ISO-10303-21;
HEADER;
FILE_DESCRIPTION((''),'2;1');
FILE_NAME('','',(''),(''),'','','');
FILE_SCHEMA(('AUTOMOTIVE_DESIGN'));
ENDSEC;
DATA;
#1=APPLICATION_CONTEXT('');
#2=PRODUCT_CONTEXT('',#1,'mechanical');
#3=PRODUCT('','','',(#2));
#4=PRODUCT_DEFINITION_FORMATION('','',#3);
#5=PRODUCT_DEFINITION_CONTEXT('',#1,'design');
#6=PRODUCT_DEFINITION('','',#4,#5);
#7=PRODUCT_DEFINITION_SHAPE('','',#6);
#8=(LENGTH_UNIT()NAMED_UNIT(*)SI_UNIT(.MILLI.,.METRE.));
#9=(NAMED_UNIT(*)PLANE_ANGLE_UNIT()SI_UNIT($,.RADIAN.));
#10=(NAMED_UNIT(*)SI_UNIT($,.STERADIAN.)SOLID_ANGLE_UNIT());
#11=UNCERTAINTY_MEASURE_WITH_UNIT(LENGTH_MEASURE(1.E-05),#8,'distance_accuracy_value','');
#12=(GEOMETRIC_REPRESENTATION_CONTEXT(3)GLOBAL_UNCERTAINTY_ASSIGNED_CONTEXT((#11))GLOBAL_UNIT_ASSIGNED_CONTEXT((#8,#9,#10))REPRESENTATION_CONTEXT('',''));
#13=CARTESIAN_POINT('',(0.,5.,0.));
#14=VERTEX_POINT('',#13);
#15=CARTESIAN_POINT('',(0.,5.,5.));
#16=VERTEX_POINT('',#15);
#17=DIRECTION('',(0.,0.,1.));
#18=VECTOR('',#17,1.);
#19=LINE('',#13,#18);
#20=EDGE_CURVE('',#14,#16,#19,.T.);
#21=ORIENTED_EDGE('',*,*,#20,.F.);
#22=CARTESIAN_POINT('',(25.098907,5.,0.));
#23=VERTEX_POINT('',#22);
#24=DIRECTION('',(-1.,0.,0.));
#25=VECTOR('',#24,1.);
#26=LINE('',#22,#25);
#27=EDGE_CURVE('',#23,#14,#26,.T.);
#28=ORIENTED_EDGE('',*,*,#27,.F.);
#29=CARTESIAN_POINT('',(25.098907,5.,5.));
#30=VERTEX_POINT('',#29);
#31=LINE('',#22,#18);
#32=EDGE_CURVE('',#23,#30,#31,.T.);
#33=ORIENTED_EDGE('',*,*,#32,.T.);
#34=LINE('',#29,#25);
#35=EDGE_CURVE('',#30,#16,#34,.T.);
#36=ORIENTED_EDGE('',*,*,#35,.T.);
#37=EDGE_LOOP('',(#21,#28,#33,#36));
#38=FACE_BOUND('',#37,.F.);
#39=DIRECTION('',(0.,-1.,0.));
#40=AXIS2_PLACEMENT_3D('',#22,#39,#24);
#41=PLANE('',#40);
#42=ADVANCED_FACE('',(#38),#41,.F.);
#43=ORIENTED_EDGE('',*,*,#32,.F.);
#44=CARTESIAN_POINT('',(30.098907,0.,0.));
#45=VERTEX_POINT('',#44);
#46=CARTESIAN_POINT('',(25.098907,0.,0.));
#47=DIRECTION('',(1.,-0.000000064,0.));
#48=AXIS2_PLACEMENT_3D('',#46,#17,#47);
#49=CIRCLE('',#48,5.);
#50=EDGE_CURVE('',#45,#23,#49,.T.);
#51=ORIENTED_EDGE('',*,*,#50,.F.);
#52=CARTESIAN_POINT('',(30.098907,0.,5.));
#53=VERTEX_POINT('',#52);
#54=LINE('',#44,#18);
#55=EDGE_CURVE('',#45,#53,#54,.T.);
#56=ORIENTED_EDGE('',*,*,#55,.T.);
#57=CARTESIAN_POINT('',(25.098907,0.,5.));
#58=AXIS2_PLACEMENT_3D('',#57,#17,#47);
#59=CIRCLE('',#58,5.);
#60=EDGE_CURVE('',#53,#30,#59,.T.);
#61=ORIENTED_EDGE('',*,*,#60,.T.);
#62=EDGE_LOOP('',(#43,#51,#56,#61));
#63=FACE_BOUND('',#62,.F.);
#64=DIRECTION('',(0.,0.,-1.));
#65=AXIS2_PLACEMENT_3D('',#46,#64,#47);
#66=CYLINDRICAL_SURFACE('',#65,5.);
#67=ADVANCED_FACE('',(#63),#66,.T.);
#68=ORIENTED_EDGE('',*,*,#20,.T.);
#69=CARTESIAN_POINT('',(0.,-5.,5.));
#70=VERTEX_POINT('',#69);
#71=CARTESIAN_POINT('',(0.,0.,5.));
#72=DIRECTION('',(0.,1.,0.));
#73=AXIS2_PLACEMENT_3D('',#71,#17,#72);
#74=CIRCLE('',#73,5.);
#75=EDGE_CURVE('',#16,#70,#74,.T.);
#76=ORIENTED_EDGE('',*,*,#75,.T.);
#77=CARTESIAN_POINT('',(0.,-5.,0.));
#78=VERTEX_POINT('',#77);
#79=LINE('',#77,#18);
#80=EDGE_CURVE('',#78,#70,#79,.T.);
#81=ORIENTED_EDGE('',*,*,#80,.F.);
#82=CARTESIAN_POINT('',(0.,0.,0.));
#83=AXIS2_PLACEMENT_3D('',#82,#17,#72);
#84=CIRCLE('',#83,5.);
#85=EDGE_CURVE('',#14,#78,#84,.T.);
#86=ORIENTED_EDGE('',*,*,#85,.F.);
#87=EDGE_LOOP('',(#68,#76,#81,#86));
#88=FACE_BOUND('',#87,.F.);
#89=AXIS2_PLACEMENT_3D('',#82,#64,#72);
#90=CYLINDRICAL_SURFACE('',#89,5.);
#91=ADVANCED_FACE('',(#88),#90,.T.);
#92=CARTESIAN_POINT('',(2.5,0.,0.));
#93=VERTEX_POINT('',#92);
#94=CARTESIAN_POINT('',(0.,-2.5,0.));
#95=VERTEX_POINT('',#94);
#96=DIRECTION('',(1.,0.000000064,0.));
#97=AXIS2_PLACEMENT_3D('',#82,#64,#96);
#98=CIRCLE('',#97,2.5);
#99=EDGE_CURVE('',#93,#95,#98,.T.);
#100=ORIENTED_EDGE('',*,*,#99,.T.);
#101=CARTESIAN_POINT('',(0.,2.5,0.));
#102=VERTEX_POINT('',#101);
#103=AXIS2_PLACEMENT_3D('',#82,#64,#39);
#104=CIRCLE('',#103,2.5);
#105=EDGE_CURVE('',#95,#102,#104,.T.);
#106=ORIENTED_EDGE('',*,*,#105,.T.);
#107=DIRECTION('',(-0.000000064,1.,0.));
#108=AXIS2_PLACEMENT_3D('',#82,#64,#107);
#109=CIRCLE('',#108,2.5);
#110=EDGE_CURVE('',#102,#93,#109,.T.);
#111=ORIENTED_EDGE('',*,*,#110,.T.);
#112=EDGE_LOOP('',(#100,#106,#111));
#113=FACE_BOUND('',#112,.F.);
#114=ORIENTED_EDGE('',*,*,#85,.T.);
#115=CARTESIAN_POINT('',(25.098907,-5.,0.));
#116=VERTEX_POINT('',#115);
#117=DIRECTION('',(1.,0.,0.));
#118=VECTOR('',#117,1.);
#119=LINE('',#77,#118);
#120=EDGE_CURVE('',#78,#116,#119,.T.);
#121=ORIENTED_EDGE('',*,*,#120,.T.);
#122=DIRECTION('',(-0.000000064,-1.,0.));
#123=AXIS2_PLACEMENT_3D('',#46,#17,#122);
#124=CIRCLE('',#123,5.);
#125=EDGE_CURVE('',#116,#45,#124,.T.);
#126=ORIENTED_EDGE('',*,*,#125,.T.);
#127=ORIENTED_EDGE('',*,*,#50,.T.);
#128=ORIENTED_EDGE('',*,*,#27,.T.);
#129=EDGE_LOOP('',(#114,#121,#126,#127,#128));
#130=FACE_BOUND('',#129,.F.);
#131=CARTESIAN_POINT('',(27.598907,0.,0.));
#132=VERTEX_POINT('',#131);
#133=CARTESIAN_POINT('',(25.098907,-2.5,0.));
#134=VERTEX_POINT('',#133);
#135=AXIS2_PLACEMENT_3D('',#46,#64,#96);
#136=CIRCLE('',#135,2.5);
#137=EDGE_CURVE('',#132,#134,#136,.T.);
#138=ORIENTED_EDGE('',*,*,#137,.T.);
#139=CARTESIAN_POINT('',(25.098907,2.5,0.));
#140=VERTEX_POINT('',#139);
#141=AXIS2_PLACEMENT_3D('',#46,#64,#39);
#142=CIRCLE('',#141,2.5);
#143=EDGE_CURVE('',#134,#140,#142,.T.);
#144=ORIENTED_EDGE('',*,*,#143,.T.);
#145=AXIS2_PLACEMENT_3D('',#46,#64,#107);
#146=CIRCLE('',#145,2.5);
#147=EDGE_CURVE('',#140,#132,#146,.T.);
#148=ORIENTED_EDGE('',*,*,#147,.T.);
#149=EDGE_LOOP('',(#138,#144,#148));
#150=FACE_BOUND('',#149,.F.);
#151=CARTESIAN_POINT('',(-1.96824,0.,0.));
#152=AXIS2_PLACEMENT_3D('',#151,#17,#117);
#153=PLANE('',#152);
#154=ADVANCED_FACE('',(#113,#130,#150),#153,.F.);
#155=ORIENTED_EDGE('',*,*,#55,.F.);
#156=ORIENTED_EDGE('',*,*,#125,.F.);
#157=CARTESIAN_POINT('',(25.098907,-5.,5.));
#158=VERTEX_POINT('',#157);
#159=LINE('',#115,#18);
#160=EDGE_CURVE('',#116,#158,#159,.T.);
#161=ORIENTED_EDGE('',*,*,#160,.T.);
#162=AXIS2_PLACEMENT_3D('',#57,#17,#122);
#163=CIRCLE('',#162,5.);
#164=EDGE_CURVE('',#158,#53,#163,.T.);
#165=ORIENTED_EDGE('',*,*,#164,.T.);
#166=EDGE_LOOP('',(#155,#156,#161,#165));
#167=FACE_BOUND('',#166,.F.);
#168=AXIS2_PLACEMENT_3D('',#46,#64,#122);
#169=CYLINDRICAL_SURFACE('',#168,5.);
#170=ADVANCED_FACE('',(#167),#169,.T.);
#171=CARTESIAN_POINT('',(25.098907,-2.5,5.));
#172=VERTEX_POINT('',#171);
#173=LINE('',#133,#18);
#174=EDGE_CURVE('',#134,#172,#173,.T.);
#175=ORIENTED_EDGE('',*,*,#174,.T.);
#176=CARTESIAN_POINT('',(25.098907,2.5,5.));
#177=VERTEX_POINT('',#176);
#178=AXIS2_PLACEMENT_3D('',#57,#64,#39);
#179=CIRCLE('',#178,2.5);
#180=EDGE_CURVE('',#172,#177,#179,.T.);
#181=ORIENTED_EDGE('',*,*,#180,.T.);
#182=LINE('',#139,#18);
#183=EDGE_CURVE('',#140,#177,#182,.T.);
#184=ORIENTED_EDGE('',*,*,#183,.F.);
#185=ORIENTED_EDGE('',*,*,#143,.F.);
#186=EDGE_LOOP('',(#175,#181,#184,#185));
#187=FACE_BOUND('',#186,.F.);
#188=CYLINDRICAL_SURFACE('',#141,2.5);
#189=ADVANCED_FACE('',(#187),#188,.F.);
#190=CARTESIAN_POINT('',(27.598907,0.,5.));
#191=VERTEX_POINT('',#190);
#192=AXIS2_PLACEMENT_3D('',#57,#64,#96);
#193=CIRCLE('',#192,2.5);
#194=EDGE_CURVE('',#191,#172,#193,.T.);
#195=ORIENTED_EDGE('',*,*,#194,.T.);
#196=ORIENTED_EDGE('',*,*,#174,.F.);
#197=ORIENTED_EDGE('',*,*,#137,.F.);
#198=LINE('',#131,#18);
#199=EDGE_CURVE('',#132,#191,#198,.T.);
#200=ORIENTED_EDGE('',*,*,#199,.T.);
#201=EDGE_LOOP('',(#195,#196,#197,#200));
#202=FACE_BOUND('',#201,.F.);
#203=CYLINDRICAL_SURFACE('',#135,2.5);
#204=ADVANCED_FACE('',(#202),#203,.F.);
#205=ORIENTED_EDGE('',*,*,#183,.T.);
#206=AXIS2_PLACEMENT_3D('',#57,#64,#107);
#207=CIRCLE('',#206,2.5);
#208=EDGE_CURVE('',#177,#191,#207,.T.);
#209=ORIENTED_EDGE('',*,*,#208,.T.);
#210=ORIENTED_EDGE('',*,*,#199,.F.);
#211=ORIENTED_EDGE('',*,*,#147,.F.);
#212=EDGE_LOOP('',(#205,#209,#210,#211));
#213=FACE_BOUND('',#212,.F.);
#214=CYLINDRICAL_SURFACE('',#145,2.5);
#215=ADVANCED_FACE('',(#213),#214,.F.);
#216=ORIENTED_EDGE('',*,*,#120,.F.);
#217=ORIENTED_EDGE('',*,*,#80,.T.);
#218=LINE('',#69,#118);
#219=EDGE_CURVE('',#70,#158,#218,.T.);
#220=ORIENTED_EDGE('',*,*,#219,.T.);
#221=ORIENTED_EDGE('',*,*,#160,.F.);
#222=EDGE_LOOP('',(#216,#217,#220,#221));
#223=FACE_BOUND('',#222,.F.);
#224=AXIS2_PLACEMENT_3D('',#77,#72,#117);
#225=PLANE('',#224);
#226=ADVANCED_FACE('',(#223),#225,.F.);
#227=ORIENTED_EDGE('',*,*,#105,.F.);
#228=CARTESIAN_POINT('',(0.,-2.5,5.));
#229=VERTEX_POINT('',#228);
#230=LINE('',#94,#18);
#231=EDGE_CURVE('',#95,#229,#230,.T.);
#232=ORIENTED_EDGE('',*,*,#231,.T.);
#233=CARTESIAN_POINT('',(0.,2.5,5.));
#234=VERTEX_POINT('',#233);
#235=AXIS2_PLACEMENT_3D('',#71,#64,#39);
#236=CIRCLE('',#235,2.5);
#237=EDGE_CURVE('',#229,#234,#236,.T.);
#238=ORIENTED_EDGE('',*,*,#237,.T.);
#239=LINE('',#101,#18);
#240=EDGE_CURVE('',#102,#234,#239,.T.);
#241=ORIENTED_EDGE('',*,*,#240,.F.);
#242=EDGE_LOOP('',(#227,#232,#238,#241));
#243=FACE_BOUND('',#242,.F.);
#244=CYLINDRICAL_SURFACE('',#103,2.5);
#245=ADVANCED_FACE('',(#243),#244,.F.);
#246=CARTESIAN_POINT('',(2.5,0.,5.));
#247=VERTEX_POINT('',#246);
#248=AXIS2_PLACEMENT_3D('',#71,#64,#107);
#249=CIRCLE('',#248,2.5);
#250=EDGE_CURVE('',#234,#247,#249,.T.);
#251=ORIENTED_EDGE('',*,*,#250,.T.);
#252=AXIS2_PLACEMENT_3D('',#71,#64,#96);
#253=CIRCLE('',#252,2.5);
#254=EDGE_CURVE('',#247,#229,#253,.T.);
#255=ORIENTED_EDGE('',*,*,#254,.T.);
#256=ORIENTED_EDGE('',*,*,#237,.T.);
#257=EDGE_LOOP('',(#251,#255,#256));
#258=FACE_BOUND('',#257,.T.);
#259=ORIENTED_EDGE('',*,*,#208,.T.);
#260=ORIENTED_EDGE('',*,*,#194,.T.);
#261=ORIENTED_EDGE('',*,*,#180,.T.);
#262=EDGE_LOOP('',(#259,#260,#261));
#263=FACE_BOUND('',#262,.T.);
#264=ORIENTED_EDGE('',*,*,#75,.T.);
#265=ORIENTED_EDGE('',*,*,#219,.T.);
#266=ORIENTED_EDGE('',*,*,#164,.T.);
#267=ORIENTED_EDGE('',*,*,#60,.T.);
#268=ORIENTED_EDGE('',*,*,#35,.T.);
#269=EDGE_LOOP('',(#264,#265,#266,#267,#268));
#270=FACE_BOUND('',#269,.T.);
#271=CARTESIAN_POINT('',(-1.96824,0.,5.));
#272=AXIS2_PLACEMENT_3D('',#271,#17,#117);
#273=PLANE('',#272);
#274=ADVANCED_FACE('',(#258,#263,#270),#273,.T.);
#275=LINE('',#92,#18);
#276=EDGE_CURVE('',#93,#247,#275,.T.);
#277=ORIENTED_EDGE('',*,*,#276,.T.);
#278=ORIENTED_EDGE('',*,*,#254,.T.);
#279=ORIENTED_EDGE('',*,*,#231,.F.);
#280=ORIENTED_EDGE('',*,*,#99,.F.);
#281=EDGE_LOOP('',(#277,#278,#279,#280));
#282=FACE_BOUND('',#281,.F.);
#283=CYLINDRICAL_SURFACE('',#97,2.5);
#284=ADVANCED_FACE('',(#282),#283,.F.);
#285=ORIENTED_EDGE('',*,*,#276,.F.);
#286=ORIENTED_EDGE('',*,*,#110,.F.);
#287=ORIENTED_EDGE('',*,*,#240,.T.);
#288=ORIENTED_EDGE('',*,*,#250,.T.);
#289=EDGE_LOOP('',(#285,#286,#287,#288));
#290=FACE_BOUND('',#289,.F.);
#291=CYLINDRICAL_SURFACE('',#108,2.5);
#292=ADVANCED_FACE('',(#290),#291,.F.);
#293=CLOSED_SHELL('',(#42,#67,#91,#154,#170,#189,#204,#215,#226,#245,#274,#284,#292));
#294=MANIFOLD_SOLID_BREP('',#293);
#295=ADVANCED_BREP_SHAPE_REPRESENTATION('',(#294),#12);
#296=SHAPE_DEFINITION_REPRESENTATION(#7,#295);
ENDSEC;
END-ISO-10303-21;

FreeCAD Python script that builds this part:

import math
import FreeCAD as App
import Part
import Sketcher
from FreeCAD import Vector
Q = App.Units.Quantity

doc = App.newDocument("Part")
params = doc.addObject("Spreadsheet::Sheet", "Params")
for row, (alias, value) in enumerate([
    ("sketch1_radius", "5 mm"),
    ("sketch1_radius2", "2.5 mm"),
    ("pad1_length", "5 mm"),
], start=1):
    params.set(f"A{row}", alias)
    params.set(f"B{row}", "=" + value)
    params.setAlias(f"B{row}", alias)

body = doc.addObject("PartDesign::Body", "Body")

# Sketch on XY plane
sketch1 = body.newObject("Sketcher::SketchObject", "Sketch")
sketch1.AttachmentSupport = (doc.getObject("XY_Plane"), [""])
sketch1.MapMode = "FlatFace"
sketch1.addGeometry(Part.ArcOfCircle(Part.Circle(Vector(0, 0, 0), Vector(0, 0, 1), 5), math.radians(90), math.radians(270)), False)
sketch1.addGeometry(Part.LineSegment(Vector(0, -5, 0), Vector(25.1, -5, 0)), False)
sketch1.addGeometry(Part.ArcOfCircle(Part.Circle(Vector(25.1, 0, 0), Vector(0, 0, 1), 5), math.radians(-90), math.radians(0)), False)
sketch1.addGeometry(Part.ArcOfCircle(Part.Circle(Vector(25.1, 0, 0), Vector(0, 0, 1), 5), math.radians(0), math.radians(90)), False)
sketch1.addGeometry(Part.LineSegment(Vector(25.1, 5, 0), Vector(0, 5, 0)), False)
sketch1.addGeometry(Part.ArcOfCircle(Part.Circle(Vector(25.1, 0, 0), Vector(0, 0, 1), 2.5), math.radians(90), math.radians(270)), False)
sketch1.addGeometry(Part.ArcOfCircle(Part.Circle(Vector(25.1, 0, 0), Vector(0, 0, 1), 2.5), math.radians(0), math.radians(90)), False)
sketch1.addGeometry(Part.ArcOfCircle(Part.Circle(Vector(25.1, 0, 0), Vector(0, 0, 1), 2.5), math.radians(-90), math.radians(0)), False)
sketch1.addGeometry(Part.ArcOfCircle(Part.Circle(Vector(0, 0, 0), Vector(0, 0, 1), 2.5), math.radians(90), math.radians(270)), False)
sketch1.addGeometry(Part.ArcOfCircle(Part.Circle(Vector(0, 0, 0), Vector(0, 0, 1), 2.5), math.radians(0), math.radians(90)), False)
sketch1.addGeometry(Part.ArcOfCircle(Part.Circle(Vector(0, 0, 0), Vector(0, 0, 1), 2.5), math.radians(-90), math.radians(0)), False)
sketch1.addConstraint(Sketcher.Constraint("Tangent", 0, 2, 1, 1))
sketch1.addConstraint(Sketcher.Constraint("Tangent", 1, 2, 2, 1))
sketch1.addConstraint(Sketcher.Constraint("Tangent", 2, 2, 3, 1))
sketch1.addConstraint(Sketcher.Constraint("Tangent", 3, 2, 4, 1))
sketch1.addConstraint(Sketcher.Constraint("Tangent", 4, 2, 0, 1))
sketch1.addConstraint(Sketcher.Constraint("Tangent", 5, 1, 6, 2))
sketch1.addConstraint(Sketcher.Constraint("Tangent", 6, 1, 7, 2))
sketch1.addConstraint(Sketcher.Constraint("Tangent", 7, 1, 5, 2))
sketch1.addConstraint(Sketcher.Constraint("Tangent", 8, 1, 9, 2))
sketch1.addConstraint(Sketcher.Constraint("Tangent", 9, 1, 10, 2))
sketch1.addConstraint(Sketcher.Constraint("Tangent", 10, 1, 8, 2))
sketch1.addConstraint(Sketcher.Constraint("Horizontal", 1))
sketch1.addConstraint(Sketcher.Constraint("Horizontal", 4))
sketch1.addConstraint(Sketcher.Constraint("Coincident", 0, 3, -1, 1))
sketch1.addConstraint(Sketcher.Constraint("Coincident", 8, 3, -1, 1))
sketch1.addConstraint(Sketcher.Constraint("Coincident", 5, 3, 2, 3))
sketch1.addConstraint(Sketcher.Constraint("Equal", 0, 2))
sketch1.addConstraint(Sketcher.Constraint("Equal", 7, 8))
sketch1.addConstraint(Sketcher.Constraint("PointOnObject", 2, 2, -1))
sketch1.addConstraint(Sketcher.Constraint("PointOnObject", 6, 1, -1))
sketch1.addConstraint(Sketcher.Constraint("PointOnObject", 8, 1, -2))
sketch1.addConstraint(Sketcher.Constraint("PointOnObject", 9, 1, -1))
sketch1.addConstraint(Sketcher.Constraint("PointOnObject", 10, 1, -2))
sketch1.addConstraint(Sketcher.Constraint("Vertical", 3, 2, 5, 1))
sketch1.addConstraint(Sketcher.Constraint("Vertical", 5, 1, 7, 1))
sketch1.addConstraint(Sketcher.Constraint("Radius", 0, Q("5 mm")))
sketch1.addConstraint(Sketcher.Constraint("Radius", 5, Q("2.5 mm")))
sketch1.addConstraint(Sketcher.Constraint("DistanceX", 1, 1, 1, 2, Q("25.098907 mm")))
sketch1.setExpression("Constraints[25]", "Params.sketch1_radius")
sketch1.setExpression("Constraints[26]", "Params.sketch1_radius2")
pad1 = body.newObject("PartDesign::Pad", "Pad")
pad1.Profile = sketch1
pad1.setExpression("Length", "Params.pad1_length")

doc.recompute()
